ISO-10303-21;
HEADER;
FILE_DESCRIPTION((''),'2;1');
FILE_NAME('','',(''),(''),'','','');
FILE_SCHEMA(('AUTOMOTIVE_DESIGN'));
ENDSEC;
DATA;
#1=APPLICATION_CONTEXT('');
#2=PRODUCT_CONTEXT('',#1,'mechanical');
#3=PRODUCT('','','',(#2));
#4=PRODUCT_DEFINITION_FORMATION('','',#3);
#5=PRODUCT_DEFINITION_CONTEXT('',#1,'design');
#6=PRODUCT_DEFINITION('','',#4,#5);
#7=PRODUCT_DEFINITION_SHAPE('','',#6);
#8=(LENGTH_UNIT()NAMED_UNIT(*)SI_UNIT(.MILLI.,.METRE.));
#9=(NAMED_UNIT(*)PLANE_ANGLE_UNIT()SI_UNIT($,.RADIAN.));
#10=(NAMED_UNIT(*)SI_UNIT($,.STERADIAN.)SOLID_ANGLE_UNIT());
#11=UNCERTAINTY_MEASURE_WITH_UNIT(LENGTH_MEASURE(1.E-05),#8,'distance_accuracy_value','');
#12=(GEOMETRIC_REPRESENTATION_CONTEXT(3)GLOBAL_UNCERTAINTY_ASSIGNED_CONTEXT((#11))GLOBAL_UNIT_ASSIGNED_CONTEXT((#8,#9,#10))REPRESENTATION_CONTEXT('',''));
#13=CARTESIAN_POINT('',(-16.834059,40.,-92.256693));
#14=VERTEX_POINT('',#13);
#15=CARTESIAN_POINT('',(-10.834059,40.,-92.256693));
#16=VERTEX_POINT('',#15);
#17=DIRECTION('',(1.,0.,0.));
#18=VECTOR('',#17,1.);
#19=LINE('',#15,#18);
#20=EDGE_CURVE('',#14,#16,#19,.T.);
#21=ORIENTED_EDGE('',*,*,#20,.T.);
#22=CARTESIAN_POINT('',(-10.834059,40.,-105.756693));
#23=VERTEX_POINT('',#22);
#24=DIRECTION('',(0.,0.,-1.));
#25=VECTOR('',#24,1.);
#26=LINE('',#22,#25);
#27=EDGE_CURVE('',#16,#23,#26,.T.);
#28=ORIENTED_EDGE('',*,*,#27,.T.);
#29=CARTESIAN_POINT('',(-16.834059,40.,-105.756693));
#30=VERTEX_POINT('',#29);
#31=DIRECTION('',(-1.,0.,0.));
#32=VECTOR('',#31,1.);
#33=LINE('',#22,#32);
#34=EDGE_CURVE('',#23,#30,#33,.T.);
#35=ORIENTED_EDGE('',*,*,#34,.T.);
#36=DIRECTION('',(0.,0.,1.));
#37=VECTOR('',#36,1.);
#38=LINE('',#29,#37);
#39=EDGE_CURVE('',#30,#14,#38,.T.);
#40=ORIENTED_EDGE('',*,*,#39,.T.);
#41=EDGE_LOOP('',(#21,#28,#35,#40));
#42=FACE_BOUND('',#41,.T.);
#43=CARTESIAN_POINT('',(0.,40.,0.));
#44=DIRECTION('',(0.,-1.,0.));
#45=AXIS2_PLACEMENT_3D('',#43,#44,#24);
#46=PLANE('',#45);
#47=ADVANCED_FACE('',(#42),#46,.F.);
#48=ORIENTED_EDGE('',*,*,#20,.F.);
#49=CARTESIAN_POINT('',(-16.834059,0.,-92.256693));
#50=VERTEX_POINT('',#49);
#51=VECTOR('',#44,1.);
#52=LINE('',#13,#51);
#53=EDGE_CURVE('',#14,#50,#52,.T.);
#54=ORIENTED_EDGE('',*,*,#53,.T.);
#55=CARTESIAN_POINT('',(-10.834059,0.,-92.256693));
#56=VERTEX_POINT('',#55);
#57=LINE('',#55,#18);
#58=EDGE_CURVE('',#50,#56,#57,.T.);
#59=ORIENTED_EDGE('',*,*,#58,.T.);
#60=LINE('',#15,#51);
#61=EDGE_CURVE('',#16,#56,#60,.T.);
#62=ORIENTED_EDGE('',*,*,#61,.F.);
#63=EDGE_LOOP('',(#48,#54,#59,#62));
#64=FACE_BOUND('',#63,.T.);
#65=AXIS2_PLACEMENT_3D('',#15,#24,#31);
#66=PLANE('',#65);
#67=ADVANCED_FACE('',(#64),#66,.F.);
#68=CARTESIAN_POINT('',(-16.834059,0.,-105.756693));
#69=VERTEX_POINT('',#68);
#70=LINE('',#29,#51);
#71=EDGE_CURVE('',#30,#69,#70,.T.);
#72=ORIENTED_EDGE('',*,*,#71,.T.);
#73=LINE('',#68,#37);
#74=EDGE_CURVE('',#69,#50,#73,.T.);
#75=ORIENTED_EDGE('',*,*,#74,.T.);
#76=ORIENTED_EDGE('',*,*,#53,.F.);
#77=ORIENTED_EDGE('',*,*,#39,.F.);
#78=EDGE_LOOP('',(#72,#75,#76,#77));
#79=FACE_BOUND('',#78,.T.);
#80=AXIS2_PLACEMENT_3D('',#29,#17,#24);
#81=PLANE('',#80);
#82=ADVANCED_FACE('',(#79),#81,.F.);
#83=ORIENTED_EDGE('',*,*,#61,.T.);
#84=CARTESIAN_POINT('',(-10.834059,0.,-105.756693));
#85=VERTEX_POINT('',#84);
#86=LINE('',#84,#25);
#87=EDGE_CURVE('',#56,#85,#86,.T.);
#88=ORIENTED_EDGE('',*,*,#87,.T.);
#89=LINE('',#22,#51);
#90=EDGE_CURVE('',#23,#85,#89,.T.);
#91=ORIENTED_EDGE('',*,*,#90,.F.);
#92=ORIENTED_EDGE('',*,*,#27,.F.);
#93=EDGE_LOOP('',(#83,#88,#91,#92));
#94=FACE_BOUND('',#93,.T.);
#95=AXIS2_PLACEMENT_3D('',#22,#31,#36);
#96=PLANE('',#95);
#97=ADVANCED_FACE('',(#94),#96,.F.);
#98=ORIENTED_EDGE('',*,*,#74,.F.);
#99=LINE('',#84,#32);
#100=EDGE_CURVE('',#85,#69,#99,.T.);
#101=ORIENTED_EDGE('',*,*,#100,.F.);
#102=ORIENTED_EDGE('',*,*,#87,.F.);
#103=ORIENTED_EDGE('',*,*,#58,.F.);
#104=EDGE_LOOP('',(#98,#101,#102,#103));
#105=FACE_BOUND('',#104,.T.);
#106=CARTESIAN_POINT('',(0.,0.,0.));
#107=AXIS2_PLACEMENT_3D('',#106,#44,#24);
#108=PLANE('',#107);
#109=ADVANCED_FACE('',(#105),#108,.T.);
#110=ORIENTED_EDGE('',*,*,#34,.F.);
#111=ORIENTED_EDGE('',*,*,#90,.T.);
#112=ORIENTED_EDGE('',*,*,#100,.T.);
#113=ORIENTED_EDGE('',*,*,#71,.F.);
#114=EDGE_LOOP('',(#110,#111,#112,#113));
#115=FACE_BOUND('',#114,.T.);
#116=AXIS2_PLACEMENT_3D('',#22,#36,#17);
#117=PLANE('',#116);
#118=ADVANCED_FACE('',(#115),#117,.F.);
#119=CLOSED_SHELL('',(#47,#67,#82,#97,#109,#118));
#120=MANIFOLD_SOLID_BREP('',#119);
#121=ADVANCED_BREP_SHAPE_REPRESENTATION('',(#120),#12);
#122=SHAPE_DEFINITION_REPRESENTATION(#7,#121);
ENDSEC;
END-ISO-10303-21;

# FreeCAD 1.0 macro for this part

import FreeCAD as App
import Part
import Sketcher

V = App.Vector
Q = App.Units.Quantity

doc = App.newDocument("Part")
body = doc.addObject("PartDesign::Body", "Body")

sketch1 = body.newObject("Sketcher::SketchObject", "Sketch")
sketch1.AttachmentSupport = (doc.getObject("XZ_Plane"), [""])
sketch1.MapMode = "FlatFace"
sketch1.addGeometry([
    Part.LineSegment(V(-10.834059, -92.256693, 0), V(-10.834059, -105.756693, 0)),
    Part.LineSegment(V(-10.834059, -105.756693, 0), V(-16.834059, -105.756693, 0)),
    Part.LineSegment(V(-16.834059, -105.756693, 0), V(-16.834059, -92.256693, 0)),
    Part.LineSegment(V(-16.834059, -92.256693, 0), V(-10.834059, -92.256693, 0)),
], False)
sketch1.addConstraint([
    Sketcher.Constraint("Coincident", 0, 2, 1, 1),
    Sketcher.Constraint("Coincident", 1, 2, 2, 1),
    Sketcher.Constraint("Coincident", 2, 2, 3, 1),
    Sketcher.Constraint("Coincident", 3, 2, 0, 1),
    Sketcher.Constraint("Vertical", 0),
    Sketcher.Constraint("Horizontal", 1),
    Sketcher.Constraint("Vertical", 2),
    Sketcher.Constraint("Horizontal", 3),
    Sketcher.Constraint("DistanceX", 1, 2, 1, 1, Q("6 mm")),
    Sketcher.Constraint("DistanceY", 0, 2, 0, 1, Q("13.5 mm")),
    Sketcher.Constraint("DistanceX", 0, 2, -1, 1, Q("10.834059 mm")),
    Sketcher.Constraint("DistanceY", 0, 2, -1, 1, Q("105.756693 mm")),
])
pad1 = body.newObject("PartDesign::Pad", "Pad")
pad1.Profile = sketch1
pad1.Length = 40
pad1.Reversed = True

doc.recompute()
